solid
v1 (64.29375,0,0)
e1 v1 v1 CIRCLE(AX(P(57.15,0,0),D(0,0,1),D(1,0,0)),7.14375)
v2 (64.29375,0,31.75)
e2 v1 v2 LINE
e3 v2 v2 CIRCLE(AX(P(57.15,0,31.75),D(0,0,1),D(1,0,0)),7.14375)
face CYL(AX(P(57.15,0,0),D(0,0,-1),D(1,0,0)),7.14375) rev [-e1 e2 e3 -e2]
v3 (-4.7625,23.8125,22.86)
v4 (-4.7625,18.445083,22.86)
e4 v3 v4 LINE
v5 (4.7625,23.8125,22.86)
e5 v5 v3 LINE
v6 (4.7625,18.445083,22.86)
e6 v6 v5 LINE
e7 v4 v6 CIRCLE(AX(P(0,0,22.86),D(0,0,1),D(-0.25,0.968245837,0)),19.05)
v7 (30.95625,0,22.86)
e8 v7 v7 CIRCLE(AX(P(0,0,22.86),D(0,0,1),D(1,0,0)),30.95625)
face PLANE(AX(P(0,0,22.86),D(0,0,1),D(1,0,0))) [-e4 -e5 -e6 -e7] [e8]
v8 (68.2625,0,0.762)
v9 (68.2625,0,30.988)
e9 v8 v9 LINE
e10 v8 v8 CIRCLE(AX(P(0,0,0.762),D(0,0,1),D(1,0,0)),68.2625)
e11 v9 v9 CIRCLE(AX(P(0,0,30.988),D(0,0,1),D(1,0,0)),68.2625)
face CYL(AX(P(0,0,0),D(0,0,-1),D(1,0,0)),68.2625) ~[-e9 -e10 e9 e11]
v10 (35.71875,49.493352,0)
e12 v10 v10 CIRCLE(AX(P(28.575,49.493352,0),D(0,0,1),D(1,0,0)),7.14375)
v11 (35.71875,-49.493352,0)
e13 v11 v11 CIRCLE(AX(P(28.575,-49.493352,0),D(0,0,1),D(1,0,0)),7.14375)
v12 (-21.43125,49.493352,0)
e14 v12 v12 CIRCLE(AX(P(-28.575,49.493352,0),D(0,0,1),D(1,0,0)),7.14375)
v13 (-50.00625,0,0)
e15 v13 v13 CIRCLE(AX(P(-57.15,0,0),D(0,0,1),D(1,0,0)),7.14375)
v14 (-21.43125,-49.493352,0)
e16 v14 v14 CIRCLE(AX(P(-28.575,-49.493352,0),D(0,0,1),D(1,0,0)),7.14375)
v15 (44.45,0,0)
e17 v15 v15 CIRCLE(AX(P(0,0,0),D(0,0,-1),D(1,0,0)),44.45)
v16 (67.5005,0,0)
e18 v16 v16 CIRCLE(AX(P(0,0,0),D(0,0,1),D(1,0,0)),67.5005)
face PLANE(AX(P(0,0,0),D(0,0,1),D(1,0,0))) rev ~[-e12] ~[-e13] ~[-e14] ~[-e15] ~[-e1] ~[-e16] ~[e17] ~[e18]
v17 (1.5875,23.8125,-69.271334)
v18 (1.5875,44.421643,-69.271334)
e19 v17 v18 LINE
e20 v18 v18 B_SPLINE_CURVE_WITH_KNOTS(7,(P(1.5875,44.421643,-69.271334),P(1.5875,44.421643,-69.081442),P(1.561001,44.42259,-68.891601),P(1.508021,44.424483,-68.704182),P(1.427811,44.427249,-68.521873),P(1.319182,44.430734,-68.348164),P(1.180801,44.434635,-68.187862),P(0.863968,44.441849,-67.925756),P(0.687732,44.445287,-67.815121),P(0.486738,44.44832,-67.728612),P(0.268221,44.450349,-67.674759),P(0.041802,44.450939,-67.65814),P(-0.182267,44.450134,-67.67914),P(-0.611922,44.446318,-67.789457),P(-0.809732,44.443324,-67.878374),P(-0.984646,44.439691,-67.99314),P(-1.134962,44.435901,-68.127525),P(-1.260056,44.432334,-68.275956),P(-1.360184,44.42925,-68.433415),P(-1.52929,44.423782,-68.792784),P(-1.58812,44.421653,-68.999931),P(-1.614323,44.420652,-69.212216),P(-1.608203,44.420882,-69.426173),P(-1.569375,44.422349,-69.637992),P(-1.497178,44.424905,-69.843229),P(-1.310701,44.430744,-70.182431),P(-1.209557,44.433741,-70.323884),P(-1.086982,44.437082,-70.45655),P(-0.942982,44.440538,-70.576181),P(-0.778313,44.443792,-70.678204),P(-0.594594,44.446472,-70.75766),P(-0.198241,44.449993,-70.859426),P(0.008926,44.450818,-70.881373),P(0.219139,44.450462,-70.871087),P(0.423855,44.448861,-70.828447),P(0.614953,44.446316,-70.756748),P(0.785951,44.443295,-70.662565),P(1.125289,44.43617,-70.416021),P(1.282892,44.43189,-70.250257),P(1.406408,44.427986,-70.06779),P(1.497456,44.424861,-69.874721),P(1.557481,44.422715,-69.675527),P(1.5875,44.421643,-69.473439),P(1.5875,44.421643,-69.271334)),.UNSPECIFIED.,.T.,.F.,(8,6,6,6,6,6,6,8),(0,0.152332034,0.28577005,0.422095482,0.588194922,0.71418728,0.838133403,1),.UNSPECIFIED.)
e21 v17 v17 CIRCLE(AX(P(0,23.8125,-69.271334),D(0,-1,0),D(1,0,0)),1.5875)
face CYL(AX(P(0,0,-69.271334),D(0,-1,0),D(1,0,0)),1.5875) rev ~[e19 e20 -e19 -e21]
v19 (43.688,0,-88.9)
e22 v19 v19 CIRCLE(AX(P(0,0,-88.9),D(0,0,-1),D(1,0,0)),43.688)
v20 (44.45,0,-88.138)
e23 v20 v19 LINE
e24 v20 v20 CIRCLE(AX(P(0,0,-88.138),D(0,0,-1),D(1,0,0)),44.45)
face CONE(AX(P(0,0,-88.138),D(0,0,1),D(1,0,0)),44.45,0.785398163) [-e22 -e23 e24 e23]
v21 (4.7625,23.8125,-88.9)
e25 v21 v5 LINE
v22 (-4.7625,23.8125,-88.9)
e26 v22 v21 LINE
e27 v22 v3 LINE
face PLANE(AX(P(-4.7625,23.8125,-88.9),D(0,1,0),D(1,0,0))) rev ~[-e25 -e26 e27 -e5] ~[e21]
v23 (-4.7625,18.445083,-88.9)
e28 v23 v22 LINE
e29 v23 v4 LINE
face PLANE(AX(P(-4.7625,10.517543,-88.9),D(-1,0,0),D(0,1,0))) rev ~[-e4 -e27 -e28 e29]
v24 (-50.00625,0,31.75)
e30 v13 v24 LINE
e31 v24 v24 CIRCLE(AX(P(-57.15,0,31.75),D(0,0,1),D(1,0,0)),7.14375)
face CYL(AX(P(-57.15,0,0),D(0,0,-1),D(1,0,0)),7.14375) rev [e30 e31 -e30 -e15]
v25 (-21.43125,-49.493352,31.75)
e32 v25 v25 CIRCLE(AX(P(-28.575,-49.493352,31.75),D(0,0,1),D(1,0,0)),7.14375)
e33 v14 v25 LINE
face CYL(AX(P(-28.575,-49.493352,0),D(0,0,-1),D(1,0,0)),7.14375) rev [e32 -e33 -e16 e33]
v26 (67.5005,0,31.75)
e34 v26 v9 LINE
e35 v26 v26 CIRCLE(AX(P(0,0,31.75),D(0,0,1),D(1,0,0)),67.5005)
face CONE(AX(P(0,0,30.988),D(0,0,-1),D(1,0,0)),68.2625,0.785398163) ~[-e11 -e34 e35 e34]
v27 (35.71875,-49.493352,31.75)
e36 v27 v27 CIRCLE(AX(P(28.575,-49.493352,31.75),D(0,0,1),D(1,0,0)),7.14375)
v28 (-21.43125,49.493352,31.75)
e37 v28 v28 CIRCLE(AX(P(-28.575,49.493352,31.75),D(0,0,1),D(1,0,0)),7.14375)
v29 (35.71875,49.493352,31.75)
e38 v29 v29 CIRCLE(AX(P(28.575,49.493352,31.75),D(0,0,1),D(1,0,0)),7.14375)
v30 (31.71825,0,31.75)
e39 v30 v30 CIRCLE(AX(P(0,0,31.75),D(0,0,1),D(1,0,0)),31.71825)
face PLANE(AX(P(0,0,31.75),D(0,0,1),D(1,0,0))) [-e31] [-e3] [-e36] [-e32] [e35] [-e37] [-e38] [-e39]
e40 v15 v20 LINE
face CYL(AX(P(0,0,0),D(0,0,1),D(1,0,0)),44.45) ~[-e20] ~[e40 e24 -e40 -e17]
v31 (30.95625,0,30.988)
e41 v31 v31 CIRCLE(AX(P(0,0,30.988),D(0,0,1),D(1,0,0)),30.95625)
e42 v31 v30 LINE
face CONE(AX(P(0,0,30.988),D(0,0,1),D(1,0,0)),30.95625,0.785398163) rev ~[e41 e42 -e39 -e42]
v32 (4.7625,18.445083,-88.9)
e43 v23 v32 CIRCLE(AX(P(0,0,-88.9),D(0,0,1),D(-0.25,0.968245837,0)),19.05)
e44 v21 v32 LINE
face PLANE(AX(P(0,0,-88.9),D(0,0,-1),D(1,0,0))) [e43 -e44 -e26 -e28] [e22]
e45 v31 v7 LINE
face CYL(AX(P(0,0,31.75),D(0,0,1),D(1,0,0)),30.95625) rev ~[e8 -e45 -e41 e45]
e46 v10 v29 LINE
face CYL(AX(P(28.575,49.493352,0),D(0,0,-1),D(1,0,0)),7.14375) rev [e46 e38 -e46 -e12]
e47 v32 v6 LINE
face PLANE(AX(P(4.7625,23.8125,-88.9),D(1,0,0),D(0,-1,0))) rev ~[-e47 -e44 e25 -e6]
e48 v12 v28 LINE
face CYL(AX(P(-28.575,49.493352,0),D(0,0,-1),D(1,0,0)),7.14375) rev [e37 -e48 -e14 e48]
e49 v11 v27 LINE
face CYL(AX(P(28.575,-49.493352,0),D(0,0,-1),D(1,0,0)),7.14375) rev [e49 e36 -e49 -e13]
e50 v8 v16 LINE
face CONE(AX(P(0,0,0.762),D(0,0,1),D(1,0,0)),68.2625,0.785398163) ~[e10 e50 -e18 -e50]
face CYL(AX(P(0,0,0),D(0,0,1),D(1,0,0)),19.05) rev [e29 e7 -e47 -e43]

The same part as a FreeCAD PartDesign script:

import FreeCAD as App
import Part
import Sketcher
from FreeCAD import Vector
Q = App.Units.Quantity


def edges_at(feature, points):
    """Names of the edges that pass closest to the given points."""
    edges = feature.Shape.Edges
    near = lambda p: min(range(len(edges)), key=lambda i: edges[i].distToShape(Part.Vertex(*p))[0])
    return sorted({f"Edge{near(p) + 1}" for p in points})

doc = App.newDocument("Part")
params = doc.addObject("Spreadsheet::Sheet", "Params")
for row, (alias, value) in enumerate([
    ("sketch1_diameter", "1.5 in"),
    ("sketch1_diameter2", "5.375 in"),
    ("sketch1_diameter3", "0.5625 in"),
    ("pad1_length", "1.25 in"),
    ("sketch2_diameter", "2.4375 in"),
    ("pocket1_length", "0.35 in"),
    ("sketch3_diameter", "3.5 in"),
    ("sketch3_diameter2", "1.5 in"),
    ("pad2_length", "3.5 in"),
    ("sketch4_width", "0.375 in"),
    ("chamfer_size", "0.03 in"),
    ("sketch5_diameter", "0.125 in"),
    ("pocket3_length", "3 in"),
], start=1):
    params.set(f"A{row}", alias)
    params.set(f"B{row}", "=" + value)
    params.setAlias(f"B{row}", alias)

body = doc.addObject("PartDesign::Body", "Body")

# Sketch on XY plane
sketch1 = body.newObject("Sketcher::SketchObject", "Sketch")
sketch1.AttachmentSupport = (doc.getObject("XY_Plane"), [""])
sketch1.MapMode = "FlatFace"
sketch1.addGeometry([
    Part.Circle(Vector(0, 0, 0), Vector(0, 0, 1), 68),  # 0
    Part.Circle(Vector(-29, -49, 0), Vector(0, 0, 1), 7),  # 1
    Part.Circle(Vector(29, -49, 0), Vector(0, 0, 1), 7),  # 2
    Part.Circle(Vector(-57, 0, 0), Vector(0, 0, 1), 7),  # 3
    Part.Circle(Vector(0, 0, 0), Vector(0, 0, 1), 19),  # 4
    Part.Circle(Vector(-29, 49, 0), Vector(0, 0, 1), 7),  # 5
    Part.Circle(Vector(57, 0, 0), Vector(0, 0, 1), 7),  # 6
    Part.Circle(Vector(29, 49, 0), Vector(0, 0, 1), 7),  # 7
], False)
sketch1.addConstraint([
    Sketcher.Constraint("Coincident", 0, 3, -1, 1),
    Sketcher.Constraint("Coincident", 4, 3, -1, 1),
    Sketcher.Constraint("Equal", 1, 2),
    Sketcher.Constraint("Equal", 2, 3),
    Sketcher.Constraint("Equal", 3, 5),
    Sketcher.Constraint("Equal", 5, 6),
    Sketcher.Constraint("Equal", 6, 7),
    Sketcher.Constraint("Symmetric", 2, 3, 5, 3, -1, 1),
    Sketcher.Constraint("Symmetric", 3, 3, 6, 3, -1, 1),
    Sketcher.Constraint("Symmetric", 1, 3, 7, 3, -1, 1),
    Sketcher.Constraint("Symmetric", 1, 3, 2, 3, -2),
    Sketcher.Constraint("PointOnObject", 3, 3, -1),
    Sketcher.Constraint("Diameter", 4, Q("1.5 in")),
    Sketcher.Constraint("Diameter", 0, Q("5.375 in")),
    Sketcher.Constraint("Diameter", 1, Q("0.5625 in")),
    Sketcher.Constraint("DistanceX", 3, 3, -1, 1, Q("2.25 in")),
    Sketcher.Constraint("DistanceX", 1, 3, 2, 3, Q("2.25 in")),
    Sketcher.Constraint("DistanceY", 1, 3, -1, 1, Q("49.493352 mm")),
])
sketch1.setExpression("Constraints[12]", "Params.sketch1_diameter")
sketch1.setExpression("Constraints[13]", "Params.sketch1_diameter2")
sketch1.setExpression("Constraints[14]", "Params.sketch1_diameter3")
pad1 = body.newObject("PartDesign::Pad", "Pad")
pad1.Profile = sketch1
pad1.setExpression("Length", "Params.pad1_length")

# Sketch on XY plane
sketch2 = body.newObject("Sketcher::SketchObject", "Sketch001")
sketch2.AttachmentSupport = (doc.getObject("XY_Plane"), [""])
sketch2.MapMode = "FlatFace"
sketch2.AttachmentOffset = App.Placement(Vector(0, 0, 1.25 * 25.4), App.Rotation())
sketch2.addGeometry(Part.Circle(Vector(0, 0, 0), Vector(0, 0, 1), 31), False)
sketch2.addConstraint([
    Sketcher.Constraint("Coincident", 0, 3, -1, 1),
    Sketcher.Constraint("Diameter", 0, Q("2.4375 in")),
])
sketch2.setExpression("Constraints[1]", "Params.sketch2_diameter")
pocket1 = body.newObject("PartDesign::Pocket", "Pocket")
pocket1.Profile = sketch2
pocket1.setExpression("Length", "Params.pocket1_length")

# Sketch on XY plane
sketch3 = body.newObject("Sketcher::SketchObject", "Sketch002")
sketch3.AttachmentSupport = (doc.getObject("XY_Plane"), [""])
sketch3.MapMode = "FlatFace"
sketch3.addGeometry([
    Part.Circle(Vector(0, 0, 0), Vector(0, 0, 1), 44),
    Part.Circle(Vector(0, 0, 0), Vector(0, 0, 1), 19),
], False)
sketch3.addConstraint([
    Sketcher.Constraint("Coincident", 0, 3, -1, 1),
    Sketcher.Constraint("Coincident", 1, 3, -1, 1),
    Sketcher.Constraint("Diameter", 0, Q("3.5 in")),
    Sketcher.Constraint("Diameter", 1, Q("1.5 in")),
])
sketch3.setExpression("Constraints[2]", "Params.sketch3_diameter")
sketch3.setExpression("Constraints[3]", "Params.sketch3_diameter2")
pad2 = body.newObject("PartDesign::Pad", "Pad001")
pad2.Profile = sketch3
pad2.setExpression("Length", "Params.pad2_length")
pad2.Reversed = True

# Sketch on XY plane
sketch4 = body.newObject("Sketcher::SketchObject", "Sketch003")
sketch4.AttachmentSupport = (doc.getObject("XY_Plane"), [""])
sketch4.MapMode = "FlatFace"
sketch4.AttachmentOffset = App.Placement(Vector(0, 0, -3.5 * 25.4), App.Rotation())
sketch4.addGeometry([
    Part.LineSegment(Vector(5, 11, 0), Vector(-5, 11, 0)),
    Part.LineSegment(Vector(-5, 11, 0), Vector(-5, 24, 0)),
    Part.LineSegment(Vector(-5, 24, 0), Vector(5, 24, 0)),
    Part.LineSegment(Vector(5, 24, 0), Vector(5, 11, 0)),
], False)
sketch4.addConstraint([
    Sketcher.Constraint("Coincident", 0, 2, 1, 1),
    Sketcher.Constraint("Coincident", 1, 2, 2, 1),
    Sketcher.Constraint("Coincident", 2, 2, 3, 1),
    Sketcher.Constraint("Coincident", 3, 2, 0, 1),
    Sketcher.Constraint("Horizontal", 0),
    Sketcher.Constraint("Vertical", 1),
    Sketcher.Constraint("Horizontal", 2),
    Sketcher.Constraint("Vertical", 3),
    Sketcher.Constraint("DistanceX", 0, 2, 0, 1, Q("0.375 in")),
    Sketcher.Constraint("DistanceX", 0, 2, -1, 1, Q("0.1875 in")),
    Sketcher.Constraint("DistanceY", -1, 1, 1, 2, Q("0.9375 in")),
    Sketcher.Constraint("DistanceY", 1, 1, 1, 2, Q("13.294957 mm")),
])
sketch4.setExpression("Constraints[8]", "Params.sketch4_width")
pocket2 = body.newObject("PartDesign::Pocket", "Pocket001")
pocket2.Profile = sketch4
pocket2.Type = "ThroughAll"
pocket2.Reversed = True
doc.recompute()

chamfer = body.newObject("PartDesign::Chamfer", "Chamfer")
chamfer.Base = (pocket2, edges_at(pocket2, [
    (-68.263, 0, 31.75),
    (-68.263, 0, 0),
    (-30.956, 0, 31.75),
    (-44.45, 0, -88.9),
]))
chamfer.setExpression("Size", "Params.chamfer_size")

# Sketch on XZ plane
sketch5 = body.newObject("Sketcher::SketchObject", "Sketch004")
sketch5.AttachmentSupport = (doc.getObject("XZ_Plane"), [""])
sketch5.MapMode = "FlatFace"
sketch5.addGeometry(Part.Circle(Vector(0, -69.3, 0), Vector(0, 0, 1), 1.6), False)
sketch5.addConstraint([
    Sketcher.Constraint("PointOnObject", 0, 3, -2),
    Sketcher.Constraint("Diameter", 0, Q("0.125 in")),
    Sketcher.Constraint("DistanceY", 0, 3, -1, 1, Q("69.271334 mm")),
])
sketch5.setExpression("Constraints[1]", "Params.sketch5_diameter")
pocket3 = body.newObject("PartDesign::Pocket", "Pocket002")
pocket3.Profile = sketch5
pocket3.setExpression("Length", "Params.pocket3_length")

doc.recompute()
